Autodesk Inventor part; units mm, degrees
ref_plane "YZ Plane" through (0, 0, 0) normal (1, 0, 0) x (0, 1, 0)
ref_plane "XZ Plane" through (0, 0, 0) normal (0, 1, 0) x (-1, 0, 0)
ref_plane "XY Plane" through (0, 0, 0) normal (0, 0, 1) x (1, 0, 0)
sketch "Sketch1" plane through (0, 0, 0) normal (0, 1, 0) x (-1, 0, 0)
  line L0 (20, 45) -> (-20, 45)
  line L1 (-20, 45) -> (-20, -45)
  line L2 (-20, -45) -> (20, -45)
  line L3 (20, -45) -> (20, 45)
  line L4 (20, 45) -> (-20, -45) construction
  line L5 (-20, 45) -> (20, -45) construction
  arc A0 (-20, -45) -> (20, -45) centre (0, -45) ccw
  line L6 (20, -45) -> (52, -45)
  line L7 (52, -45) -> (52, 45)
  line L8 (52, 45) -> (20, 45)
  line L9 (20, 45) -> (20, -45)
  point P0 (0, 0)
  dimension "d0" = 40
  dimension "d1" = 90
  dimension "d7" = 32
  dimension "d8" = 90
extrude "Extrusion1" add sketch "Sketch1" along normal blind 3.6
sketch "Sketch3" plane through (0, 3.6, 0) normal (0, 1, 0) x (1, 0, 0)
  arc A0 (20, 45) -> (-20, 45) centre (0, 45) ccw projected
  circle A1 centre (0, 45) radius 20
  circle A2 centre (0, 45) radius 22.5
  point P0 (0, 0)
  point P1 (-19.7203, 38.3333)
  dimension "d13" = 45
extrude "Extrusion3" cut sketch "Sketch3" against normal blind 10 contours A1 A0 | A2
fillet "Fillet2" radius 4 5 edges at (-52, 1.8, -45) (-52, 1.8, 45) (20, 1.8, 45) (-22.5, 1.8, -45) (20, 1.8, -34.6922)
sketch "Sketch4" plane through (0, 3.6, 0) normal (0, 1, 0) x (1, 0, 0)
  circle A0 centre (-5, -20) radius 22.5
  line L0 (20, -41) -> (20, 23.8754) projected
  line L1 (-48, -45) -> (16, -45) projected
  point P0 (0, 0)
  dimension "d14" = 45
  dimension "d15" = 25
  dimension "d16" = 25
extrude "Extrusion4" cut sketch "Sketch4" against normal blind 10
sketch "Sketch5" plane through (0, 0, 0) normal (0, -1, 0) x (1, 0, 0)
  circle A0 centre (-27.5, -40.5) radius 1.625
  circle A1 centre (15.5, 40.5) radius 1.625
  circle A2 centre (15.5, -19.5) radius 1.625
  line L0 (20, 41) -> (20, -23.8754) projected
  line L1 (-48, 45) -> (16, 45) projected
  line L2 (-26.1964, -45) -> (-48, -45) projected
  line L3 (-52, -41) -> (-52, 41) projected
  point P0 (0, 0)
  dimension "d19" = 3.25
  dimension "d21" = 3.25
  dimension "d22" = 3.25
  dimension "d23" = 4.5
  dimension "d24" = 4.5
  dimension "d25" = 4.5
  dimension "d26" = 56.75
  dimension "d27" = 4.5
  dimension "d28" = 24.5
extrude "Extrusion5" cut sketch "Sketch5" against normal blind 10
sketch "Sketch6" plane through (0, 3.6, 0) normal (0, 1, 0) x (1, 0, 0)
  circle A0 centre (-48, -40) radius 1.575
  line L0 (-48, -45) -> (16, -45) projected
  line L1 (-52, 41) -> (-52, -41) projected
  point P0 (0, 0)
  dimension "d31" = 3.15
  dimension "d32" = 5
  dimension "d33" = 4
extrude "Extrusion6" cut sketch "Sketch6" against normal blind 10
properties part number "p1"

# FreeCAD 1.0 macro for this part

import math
import FreeCAD as App
import Part
import Sketcher

V = App.Vector
Q = App.Units.Quantity


def edges_at(feature, points):
    """Names of the edges that pass closest to the given points."""
    edges = feature.Shape.Edges
    near = lambda p: min(range(len(edges)), key=lambda i: edges[i].distToShape(Part.Vertex(*p))[0])
    return sorted({f"Edge{near(p) + 1}" for p in points})

doc = App.newDocument("Part")
body = doc.addObject("PartDesign::Body", "Body")

sketch1 = body.newObject("Sketcher::SketchObject", "Sketch")
sketch1.AttachmentSupport = (doc.getObject("XZ_Plane"), [""])
sketch1.MapMode = "FlatFace"
sketch1.addGeometry(Part.LineSegment(V(20, 45, 0), V(20, -45, 0)), False)
sketch1.addGeometry(Part.ArcOfCircle(Part.Circle(V(0, -45, 0), V(0, 0, 1), 20), math.radians(180), math.radians(360)), False)
sketch1.addGeometry(Part.LineSegment(V(-20, -45, 0), V(-52, -45, 0)), False)
sketch1.addGeometry(Part.LineSegment(V(-52, -45, 0), V(-52, 45, 0)), False)
sketch1.addGeometry(Part.LineSegment(V(-52, 45, 0), V(20, 45, 0)), False)
sketch1.addConstraint(Sketcher.Constraint("Tangent", 0, 2, 1, 2))
sketch1.addConstraint(Sketcher.Constraint("Coincident", 1, 1, 2, 1))
sketch1.addConstraint(Sketcher.Constraint("Coincident", 2, 2, 3, 1))
sketch1.addConstraint(Sketcher.Constraint("Coincident", 3, 2, 4, 1))
sketch1.addConstraint(Sketcher.Constraint("Coincident", 4, 2, 0, 1))
sketch1.addConstraint(Sketcher.Constraint("Vertical", 0))
sketch1.addConstraint(Sketcher.Constraint("Horizontal", 2))
sketch1.addConstraint(Sketcher.Constraint("Vertical", 3))
sketch1.addConstraint(Sketcher.Constraint("Horizontal", 4))
sketch1.addConstraint(Sketcher.Constraint("Symmetric", 1, 1, 4, 2, -1, 1))
sketch1.addConstraint(Sketcher.Constraint("Horizontal", 0, 2, 1, 1))
sketch1.addConstraint(Sketcher.Constraint("Radius", 1, Q("20 mm")))
sketch1.addConstraint(Sketcher.Constraint("DistanceX", 2, 2, 2, 1, Q("32 mm")))
sketch1.addConstraint(Sketcher.Constraint("DistanceY", 0, 2, 0, 1, Q("90 mm")))
pad1 = body.newObject("PartDesign::Pad", "Pad")
pad1.Profile = sketch1
pad1.Length = 3.6
pad1.Reversed = True

sketch2 = body.newObject("Sketcher::SketchObject", "Sketch001")
sketch2.AttachmentSupport = (doc.getObject("XZ_Plane"), [""])
sketch2.MapMode = "FlatFace"
sketch2.AttachmentOffset = App.Placement(V(0, 0, -3.6), App.Rotation())
sketch2.addGeometry(Part.Circle(V(0, -45, 0), V(0, 0, 1), 22), False)
sketch2.addConstraint(Sketcher.Constraint("PointOnObject", 0, 3, -2))
sketch2.addConstraint(Sketcher.Constraint("Diameter", 0, Q("45 mm")))
sketch2.addConstraint(Sketcher.Constraint("DistanceY", 0, 3, -1, 1, Q("45 mm")))
pocket1 = body.newObject("PartDesign::Pocket", "Pocket")
pocket1.Profile = sketch2
pocket1.Length = 10
pocket1.Reversed = True
doc.recompute()

fillet = body.newObject("PartDesign::Fillet", "Fillet")
fillet.Base = (pocket1, edges_at(pocket1, [
    (-52, 1.8, -45),
    (-52, 1.8, 45),
    (20, 1.8, 45),
    (-22.5, 1.8, -45),
    (20, 1.8, -34.692),
]))
fillet.Radius = 4

sketch3 = body.newObject("Sketcher::SketchObject", "Sketch002")
sketch3.AttachmentSupport = (doc.getObject("XZ_Plane"), [""])
sketch3.MapMode = "FlatFace"
sketch3.AttachmentOffset = App.Placement(V(0, 0, -3.6), App.Rotation())
sketch3.addGeometry(Part.Circle(V(-5, 20, 0), V(0, 0, 1), 22), False)
sketch3.addConstraint(Sketcher.Constraint("Diameter", 0, Q("45 mm")))
sketch3.addConstraint(Sketcher.Constraint("DistanceX", 0, 3, -1, 1, Q("5 mm")))
sketch3.addConstraint(Sketcher.Constraint("DistanceY", -1, 1, 0, 3, Q("20 mm")))
pocket2 = body.newObject("PartDesign::Pocket", "Pocket001")
pocket2.Profile = sketch3
pocket2.Length = 10
pocket2.Reversed = True

sketch4 = body.newObject("Sketcher::SketchObject", "Sketch003")
sketch4.AttachmentSupport = (doc.getObject("XZ_Plane"), [""])
sketch4.MapMode = "FlatFace"
sketch4.addGeometry(Part.Circle(V(-27.5, -40.5, 0), V(0, 0, 1), 1.6), False)
sketch4.addGeometry(Part.Circle(V(15.5, 40.5, 0), V(0, 0, 1), 1.6), False)
sketch4.addGeometry(Part.Circle(V(15.5, -19.5, 0), V(0, 0, 1), 1.6), False)
sketch4.addConstraint(Sketcher.Constraint("Equal", 0, 1))
sketch4.addConstraint(Sketcher.Constraint("Equal", 1, 2))
sketch4.addConstraint(Sketcher.Constraint("Vertical", 1, 3, 2, 3))
sketch4.addConstraint(Sketcher.Constraint("Diameter", 0, Q("3.25 mm")))
sketch4.addConstraint(Sketcher.Constraint("DistanceX", 0, 3, 1, 3, Q("43 mm")))
sketch4.addConstraint(Sketcher.Constraint("DistanceY", 0, 3, 1, 3, Q("81 mm")))
sketch4.addConstraint(Sketcher.Constraint("DistanceY", 0, 3, 2, 3, Q("21 mm")))
sketch4.addConstraint(Sketcher.Constraint("DistanceX", 0, 3, -1, 1, Q("27.5 mm")))
sketch4.addConstraint(Sketcher.Constraint("DistanceY", 0, 3, -1, 1, Q("40.5 mm")))
pocket3 = body.newObject("PartDesign::Pocket", "Pocket002")
pocket3.Profile = sketch4
pocket3.Length = 10

sketch5 = body.newObject("Sketcher::SketchObject", "Sketch004")
sketch5.AttachmentSupport = (doc.getObject("XZ_Plane"), [""])
sketch5.MapMode = "FlatFace"
sketch5.AttachmentOffset = App.Placement(V(0, 0, -3.6), App.Rotation())
sketch5.addGeometry(Part.Circle(V(-48, 40, 0), V(0, 0, 1), 1.6), False)
sketch5.addConstraint(Sketcher.Constraint("Diameter", 0, Q("3.15 mm")))
sketch5.addConstraint(Sketcher.Constraint("DistanceX", 0, 3, -1, 1, Q("48 mm")))
sketch5.addConstraint(Sketcher.Constraint("DistanceY", -1, 1, 0, 3, Q("40 mm")))
pocket4 = body.newObject("PartDesign::Pocket", "Pocket003")
pocket4.Profile = sketch5
pocket4.Length = 10
pocket4.Reversed = True

doc.recompute()
